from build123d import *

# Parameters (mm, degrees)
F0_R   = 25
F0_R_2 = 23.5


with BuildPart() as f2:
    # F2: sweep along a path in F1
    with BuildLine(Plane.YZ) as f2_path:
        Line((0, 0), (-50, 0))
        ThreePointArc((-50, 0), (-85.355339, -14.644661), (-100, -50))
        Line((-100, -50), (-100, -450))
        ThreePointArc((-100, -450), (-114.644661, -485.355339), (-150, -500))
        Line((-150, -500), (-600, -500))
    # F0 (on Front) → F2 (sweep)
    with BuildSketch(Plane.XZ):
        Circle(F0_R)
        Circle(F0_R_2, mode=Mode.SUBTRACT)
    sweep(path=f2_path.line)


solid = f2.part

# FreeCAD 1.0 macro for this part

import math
import FreeCAD as App
import Part
import Sketcher
Q = App.Units.Quantity

doc = App.newDocument("Part")
body = doc.addObject("PartDesign::Body", "Body")

# Sketch on XZ plane
sketch1 = body.newObject("Sketcher::SketchObject", "Sketch")
sketch1.AttachmentSupport = (doc.getObject("XZ_Plane"), [""])
sketch1.MapMode = "FlatFace"
sketch1.addGeometry([
    Part.Circle(App.Vector(0, 0, 0), App.Vector(0, 0, 1), 25),
    Part.Circle(App.Vector(0, 0, 0), App.Vector(0, 0, 1), 24),
], False)
sketch1.addConstraint([
    Sketcher.Constraint("Coincident", 0, 3, -1, 1),
    Sketcher.Constraint("Coincident", 1, 3, -1, 1),
    Sketcher.Constraint("Diameter", 0, Q("50 mm")),
    Sketcher.Constraint("Diameter", 1, Q("47 mm")),
])

# Sketch on YZ plane
sketch2 = body.newObject("Sketcher::SketchObject", "Sketch001")
sketch2.AttachmentSupport = (doc.getObject("YZ_Plane"), [""])
sketch2.MapMode = "FlatFace"
sketch2.addGeometry([
    Part.LineSegment(App.Vector(0, 0, 0), App.Vector(-50, 0, 0)),  # 0
    Part.ArcOfCircle(Part.Circle(App.Vector(-50, -50, 0), App.Vector(0, 0, 1), 50), math.radians(90), math.radians(180)),  # 1
    Part.LineSegment(App.Vector(-100, -50, 0), App.Vector(-100, -450, 0)),  # 2
    Part.ArcOfCircle(Part.Circle(App.Vector(-150, -450, 0), App.Vector(0, 0, 1), 50), math.radians(-90), math.radians(0)),  # 3
    Part.LineSegment(App.Vector(-150, -500, 0), App.Vector(-600, -500, 0)),  # 4
], False)
sketch2.addConstraint([
    Sketcher.Constraint("Tangent", 0, 2, 1, 1),
    Sketcher.Constraint("Tangent", 1, 2, 2, 1),
    Sketcher.Constraint("Tangent", 2, 2, 3, 2),
    Sketcher.Constraint("Tangent", 3, 1, 4, 1),
    Sketcher.Constraint("Horizontal", 0),
    Sketcher.Constraint("Vertical", 2),
    Sketcher.Constraint("Horizontal", 4),
    Sketcher.Constraint("Coincident", 0, 1, -1, 1),
    Sketcher.Constraint("Equal", 1, 3),
    Sketcher.Constraint("Radius", 1, Q("50 mm")),
    Sketcher.Constraint("DistanceX", 0, 2, 0, 1, Q("50 mm")),
    Sketcher.Constraint("DistanceX", 4, 2, 4, 1, Q("450 mm")),
    Sketcher.Constraint("DistanceY", 2, 2, 2, 1, Q("400 mm")),
])
doc.recompute()

additivepipe = body.newObject("PartDesign::AdditivePipe", "AdditivePipe")
additivepipe.Profile = sketch1
additivepipe.Spine = (sketch2, ["Edge1", "Edge2", "Edge3", "Edge4", "Edge5"])

doc.recompute()
